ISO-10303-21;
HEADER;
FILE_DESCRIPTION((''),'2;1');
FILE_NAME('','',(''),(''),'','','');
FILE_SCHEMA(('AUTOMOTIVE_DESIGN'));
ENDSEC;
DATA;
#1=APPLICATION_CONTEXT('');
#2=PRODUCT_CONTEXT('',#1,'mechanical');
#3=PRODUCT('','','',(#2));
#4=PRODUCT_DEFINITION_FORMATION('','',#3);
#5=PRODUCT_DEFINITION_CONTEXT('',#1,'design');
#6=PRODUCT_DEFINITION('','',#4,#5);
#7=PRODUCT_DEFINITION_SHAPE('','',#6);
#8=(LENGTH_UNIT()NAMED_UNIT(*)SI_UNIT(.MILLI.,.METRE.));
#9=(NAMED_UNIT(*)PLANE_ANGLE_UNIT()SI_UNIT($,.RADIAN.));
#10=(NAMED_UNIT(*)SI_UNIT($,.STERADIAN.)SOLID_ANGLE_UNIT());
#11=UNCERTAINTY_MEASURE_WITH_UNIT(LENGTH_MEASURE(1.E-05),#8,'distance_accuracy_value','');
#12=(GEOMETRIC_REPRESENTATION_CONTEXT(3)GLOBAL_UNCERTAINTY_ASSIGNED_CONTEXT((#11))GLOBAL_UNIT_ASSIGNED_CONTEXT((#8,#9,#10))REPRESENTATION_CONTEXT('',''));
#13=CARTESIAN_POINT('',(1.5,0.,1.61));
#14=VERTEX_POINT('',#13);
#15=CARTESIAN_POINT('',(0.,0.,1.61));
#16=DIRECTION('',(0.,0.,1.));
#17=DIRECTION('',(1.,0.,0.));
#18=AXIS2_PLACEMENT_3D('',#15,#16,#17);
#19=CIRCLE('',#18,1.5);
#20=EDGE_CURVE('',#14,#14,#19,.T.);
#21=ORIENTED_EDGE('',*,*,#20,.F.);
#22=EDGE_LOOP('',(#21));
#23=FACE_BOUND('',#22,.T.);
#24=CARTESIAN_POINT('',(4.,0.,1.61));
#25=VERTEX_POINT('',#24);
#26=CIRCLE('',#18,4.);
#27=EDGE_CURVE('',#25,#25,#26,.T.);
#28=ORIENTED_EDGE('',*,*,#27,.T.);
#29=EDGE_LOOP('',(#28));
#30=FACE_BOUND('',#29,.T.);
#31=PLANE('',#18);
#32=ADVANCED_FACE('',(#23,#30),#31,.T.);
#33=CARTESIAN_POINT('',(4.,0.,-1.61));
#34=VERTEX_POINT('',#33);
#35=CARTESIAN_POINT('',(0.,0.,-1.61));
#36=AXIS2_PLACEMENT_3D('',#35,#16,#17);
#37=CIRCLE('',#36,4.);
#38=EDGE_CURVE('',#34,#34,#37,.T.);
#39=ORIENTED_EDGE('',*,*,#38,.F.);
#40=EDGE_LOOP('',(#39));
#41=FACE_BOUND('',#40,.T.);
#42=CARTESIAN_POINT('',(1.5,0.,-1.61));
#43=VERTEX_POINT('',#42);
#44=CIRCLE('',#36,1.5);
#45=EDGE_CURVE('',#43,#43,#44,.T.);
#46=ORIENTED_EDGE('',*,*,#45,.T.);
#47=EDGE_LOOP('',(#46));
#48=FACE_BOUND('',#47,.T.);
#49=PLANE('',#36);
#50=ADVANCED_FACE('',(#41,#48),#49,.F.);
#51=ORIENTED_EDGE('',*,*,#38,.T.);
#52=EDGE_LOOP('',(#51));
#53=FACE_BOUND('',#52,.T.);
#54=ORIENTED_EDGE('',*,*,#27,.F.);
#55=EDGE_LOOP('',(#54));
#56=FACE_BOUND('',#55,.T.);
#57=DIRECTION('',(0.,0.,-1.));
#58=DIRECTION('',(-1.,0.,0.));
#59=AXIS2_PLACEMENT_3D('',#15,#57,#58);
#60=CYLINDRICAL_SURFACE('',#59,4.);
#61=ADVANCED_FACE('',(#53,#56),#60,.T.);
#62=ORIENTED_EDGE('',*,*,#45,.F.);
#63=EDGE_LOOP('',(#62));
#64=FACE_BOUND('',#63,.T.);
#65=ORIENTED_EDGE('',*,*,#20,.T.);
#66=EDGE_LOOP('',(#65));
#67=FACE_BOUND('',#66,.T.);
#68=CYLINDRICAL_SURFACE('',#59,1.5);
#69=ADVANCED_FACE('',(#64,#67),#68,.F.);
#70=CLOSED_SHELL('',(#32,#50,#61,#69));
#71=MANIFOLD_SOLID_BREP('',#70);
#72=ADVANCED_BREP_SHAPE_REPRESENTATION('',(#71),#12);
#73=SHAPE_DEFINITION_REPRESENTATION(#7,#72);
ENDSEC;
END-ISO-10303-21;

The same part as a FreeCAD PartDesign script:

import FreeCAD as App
import Part
import Sketcher

V = App.Vector

doc = App.newDocument("Part")
body = doc.addObject("PartDesign::Body", "Body")

# Sketch on XY plane
sketch1 = body.newObject("Sketcher::SketchObject", "Sketch")
sketch1.AttachmentSupport = (doc.getObject("XY_Plane"), [""])
sketch1.MapMode = "FlatFace"
sketch1.addGeometry(Part.Circle(V(0, 0, 0), V(0, 0, 1), 4), False)
sketch1.addGeometry(Part.Circle(V(0, 0, 0), V(0, 0, 1), 1.5), False)
sketch1.addConstraint(Sketcher.Constraint("Coincident", 0, 3, -1, 1))
sketch1.addConstraint(Sketcher.Constraint("Coincident", 1, 3, -1, 1))
sketch1.addConstraint(Sketcher.Constraint("Diameter", 0, 8.0))
sketch1.addConstraint(Sketcher.Constraint("Diameter", 1, 3.0))
pad1 = body.newObject("PartDesign::Pad", "Pad")
pad1.Profile = sketch1
pad1.Length = 3.22
pad1.Midplane = True

doc.recompute()
